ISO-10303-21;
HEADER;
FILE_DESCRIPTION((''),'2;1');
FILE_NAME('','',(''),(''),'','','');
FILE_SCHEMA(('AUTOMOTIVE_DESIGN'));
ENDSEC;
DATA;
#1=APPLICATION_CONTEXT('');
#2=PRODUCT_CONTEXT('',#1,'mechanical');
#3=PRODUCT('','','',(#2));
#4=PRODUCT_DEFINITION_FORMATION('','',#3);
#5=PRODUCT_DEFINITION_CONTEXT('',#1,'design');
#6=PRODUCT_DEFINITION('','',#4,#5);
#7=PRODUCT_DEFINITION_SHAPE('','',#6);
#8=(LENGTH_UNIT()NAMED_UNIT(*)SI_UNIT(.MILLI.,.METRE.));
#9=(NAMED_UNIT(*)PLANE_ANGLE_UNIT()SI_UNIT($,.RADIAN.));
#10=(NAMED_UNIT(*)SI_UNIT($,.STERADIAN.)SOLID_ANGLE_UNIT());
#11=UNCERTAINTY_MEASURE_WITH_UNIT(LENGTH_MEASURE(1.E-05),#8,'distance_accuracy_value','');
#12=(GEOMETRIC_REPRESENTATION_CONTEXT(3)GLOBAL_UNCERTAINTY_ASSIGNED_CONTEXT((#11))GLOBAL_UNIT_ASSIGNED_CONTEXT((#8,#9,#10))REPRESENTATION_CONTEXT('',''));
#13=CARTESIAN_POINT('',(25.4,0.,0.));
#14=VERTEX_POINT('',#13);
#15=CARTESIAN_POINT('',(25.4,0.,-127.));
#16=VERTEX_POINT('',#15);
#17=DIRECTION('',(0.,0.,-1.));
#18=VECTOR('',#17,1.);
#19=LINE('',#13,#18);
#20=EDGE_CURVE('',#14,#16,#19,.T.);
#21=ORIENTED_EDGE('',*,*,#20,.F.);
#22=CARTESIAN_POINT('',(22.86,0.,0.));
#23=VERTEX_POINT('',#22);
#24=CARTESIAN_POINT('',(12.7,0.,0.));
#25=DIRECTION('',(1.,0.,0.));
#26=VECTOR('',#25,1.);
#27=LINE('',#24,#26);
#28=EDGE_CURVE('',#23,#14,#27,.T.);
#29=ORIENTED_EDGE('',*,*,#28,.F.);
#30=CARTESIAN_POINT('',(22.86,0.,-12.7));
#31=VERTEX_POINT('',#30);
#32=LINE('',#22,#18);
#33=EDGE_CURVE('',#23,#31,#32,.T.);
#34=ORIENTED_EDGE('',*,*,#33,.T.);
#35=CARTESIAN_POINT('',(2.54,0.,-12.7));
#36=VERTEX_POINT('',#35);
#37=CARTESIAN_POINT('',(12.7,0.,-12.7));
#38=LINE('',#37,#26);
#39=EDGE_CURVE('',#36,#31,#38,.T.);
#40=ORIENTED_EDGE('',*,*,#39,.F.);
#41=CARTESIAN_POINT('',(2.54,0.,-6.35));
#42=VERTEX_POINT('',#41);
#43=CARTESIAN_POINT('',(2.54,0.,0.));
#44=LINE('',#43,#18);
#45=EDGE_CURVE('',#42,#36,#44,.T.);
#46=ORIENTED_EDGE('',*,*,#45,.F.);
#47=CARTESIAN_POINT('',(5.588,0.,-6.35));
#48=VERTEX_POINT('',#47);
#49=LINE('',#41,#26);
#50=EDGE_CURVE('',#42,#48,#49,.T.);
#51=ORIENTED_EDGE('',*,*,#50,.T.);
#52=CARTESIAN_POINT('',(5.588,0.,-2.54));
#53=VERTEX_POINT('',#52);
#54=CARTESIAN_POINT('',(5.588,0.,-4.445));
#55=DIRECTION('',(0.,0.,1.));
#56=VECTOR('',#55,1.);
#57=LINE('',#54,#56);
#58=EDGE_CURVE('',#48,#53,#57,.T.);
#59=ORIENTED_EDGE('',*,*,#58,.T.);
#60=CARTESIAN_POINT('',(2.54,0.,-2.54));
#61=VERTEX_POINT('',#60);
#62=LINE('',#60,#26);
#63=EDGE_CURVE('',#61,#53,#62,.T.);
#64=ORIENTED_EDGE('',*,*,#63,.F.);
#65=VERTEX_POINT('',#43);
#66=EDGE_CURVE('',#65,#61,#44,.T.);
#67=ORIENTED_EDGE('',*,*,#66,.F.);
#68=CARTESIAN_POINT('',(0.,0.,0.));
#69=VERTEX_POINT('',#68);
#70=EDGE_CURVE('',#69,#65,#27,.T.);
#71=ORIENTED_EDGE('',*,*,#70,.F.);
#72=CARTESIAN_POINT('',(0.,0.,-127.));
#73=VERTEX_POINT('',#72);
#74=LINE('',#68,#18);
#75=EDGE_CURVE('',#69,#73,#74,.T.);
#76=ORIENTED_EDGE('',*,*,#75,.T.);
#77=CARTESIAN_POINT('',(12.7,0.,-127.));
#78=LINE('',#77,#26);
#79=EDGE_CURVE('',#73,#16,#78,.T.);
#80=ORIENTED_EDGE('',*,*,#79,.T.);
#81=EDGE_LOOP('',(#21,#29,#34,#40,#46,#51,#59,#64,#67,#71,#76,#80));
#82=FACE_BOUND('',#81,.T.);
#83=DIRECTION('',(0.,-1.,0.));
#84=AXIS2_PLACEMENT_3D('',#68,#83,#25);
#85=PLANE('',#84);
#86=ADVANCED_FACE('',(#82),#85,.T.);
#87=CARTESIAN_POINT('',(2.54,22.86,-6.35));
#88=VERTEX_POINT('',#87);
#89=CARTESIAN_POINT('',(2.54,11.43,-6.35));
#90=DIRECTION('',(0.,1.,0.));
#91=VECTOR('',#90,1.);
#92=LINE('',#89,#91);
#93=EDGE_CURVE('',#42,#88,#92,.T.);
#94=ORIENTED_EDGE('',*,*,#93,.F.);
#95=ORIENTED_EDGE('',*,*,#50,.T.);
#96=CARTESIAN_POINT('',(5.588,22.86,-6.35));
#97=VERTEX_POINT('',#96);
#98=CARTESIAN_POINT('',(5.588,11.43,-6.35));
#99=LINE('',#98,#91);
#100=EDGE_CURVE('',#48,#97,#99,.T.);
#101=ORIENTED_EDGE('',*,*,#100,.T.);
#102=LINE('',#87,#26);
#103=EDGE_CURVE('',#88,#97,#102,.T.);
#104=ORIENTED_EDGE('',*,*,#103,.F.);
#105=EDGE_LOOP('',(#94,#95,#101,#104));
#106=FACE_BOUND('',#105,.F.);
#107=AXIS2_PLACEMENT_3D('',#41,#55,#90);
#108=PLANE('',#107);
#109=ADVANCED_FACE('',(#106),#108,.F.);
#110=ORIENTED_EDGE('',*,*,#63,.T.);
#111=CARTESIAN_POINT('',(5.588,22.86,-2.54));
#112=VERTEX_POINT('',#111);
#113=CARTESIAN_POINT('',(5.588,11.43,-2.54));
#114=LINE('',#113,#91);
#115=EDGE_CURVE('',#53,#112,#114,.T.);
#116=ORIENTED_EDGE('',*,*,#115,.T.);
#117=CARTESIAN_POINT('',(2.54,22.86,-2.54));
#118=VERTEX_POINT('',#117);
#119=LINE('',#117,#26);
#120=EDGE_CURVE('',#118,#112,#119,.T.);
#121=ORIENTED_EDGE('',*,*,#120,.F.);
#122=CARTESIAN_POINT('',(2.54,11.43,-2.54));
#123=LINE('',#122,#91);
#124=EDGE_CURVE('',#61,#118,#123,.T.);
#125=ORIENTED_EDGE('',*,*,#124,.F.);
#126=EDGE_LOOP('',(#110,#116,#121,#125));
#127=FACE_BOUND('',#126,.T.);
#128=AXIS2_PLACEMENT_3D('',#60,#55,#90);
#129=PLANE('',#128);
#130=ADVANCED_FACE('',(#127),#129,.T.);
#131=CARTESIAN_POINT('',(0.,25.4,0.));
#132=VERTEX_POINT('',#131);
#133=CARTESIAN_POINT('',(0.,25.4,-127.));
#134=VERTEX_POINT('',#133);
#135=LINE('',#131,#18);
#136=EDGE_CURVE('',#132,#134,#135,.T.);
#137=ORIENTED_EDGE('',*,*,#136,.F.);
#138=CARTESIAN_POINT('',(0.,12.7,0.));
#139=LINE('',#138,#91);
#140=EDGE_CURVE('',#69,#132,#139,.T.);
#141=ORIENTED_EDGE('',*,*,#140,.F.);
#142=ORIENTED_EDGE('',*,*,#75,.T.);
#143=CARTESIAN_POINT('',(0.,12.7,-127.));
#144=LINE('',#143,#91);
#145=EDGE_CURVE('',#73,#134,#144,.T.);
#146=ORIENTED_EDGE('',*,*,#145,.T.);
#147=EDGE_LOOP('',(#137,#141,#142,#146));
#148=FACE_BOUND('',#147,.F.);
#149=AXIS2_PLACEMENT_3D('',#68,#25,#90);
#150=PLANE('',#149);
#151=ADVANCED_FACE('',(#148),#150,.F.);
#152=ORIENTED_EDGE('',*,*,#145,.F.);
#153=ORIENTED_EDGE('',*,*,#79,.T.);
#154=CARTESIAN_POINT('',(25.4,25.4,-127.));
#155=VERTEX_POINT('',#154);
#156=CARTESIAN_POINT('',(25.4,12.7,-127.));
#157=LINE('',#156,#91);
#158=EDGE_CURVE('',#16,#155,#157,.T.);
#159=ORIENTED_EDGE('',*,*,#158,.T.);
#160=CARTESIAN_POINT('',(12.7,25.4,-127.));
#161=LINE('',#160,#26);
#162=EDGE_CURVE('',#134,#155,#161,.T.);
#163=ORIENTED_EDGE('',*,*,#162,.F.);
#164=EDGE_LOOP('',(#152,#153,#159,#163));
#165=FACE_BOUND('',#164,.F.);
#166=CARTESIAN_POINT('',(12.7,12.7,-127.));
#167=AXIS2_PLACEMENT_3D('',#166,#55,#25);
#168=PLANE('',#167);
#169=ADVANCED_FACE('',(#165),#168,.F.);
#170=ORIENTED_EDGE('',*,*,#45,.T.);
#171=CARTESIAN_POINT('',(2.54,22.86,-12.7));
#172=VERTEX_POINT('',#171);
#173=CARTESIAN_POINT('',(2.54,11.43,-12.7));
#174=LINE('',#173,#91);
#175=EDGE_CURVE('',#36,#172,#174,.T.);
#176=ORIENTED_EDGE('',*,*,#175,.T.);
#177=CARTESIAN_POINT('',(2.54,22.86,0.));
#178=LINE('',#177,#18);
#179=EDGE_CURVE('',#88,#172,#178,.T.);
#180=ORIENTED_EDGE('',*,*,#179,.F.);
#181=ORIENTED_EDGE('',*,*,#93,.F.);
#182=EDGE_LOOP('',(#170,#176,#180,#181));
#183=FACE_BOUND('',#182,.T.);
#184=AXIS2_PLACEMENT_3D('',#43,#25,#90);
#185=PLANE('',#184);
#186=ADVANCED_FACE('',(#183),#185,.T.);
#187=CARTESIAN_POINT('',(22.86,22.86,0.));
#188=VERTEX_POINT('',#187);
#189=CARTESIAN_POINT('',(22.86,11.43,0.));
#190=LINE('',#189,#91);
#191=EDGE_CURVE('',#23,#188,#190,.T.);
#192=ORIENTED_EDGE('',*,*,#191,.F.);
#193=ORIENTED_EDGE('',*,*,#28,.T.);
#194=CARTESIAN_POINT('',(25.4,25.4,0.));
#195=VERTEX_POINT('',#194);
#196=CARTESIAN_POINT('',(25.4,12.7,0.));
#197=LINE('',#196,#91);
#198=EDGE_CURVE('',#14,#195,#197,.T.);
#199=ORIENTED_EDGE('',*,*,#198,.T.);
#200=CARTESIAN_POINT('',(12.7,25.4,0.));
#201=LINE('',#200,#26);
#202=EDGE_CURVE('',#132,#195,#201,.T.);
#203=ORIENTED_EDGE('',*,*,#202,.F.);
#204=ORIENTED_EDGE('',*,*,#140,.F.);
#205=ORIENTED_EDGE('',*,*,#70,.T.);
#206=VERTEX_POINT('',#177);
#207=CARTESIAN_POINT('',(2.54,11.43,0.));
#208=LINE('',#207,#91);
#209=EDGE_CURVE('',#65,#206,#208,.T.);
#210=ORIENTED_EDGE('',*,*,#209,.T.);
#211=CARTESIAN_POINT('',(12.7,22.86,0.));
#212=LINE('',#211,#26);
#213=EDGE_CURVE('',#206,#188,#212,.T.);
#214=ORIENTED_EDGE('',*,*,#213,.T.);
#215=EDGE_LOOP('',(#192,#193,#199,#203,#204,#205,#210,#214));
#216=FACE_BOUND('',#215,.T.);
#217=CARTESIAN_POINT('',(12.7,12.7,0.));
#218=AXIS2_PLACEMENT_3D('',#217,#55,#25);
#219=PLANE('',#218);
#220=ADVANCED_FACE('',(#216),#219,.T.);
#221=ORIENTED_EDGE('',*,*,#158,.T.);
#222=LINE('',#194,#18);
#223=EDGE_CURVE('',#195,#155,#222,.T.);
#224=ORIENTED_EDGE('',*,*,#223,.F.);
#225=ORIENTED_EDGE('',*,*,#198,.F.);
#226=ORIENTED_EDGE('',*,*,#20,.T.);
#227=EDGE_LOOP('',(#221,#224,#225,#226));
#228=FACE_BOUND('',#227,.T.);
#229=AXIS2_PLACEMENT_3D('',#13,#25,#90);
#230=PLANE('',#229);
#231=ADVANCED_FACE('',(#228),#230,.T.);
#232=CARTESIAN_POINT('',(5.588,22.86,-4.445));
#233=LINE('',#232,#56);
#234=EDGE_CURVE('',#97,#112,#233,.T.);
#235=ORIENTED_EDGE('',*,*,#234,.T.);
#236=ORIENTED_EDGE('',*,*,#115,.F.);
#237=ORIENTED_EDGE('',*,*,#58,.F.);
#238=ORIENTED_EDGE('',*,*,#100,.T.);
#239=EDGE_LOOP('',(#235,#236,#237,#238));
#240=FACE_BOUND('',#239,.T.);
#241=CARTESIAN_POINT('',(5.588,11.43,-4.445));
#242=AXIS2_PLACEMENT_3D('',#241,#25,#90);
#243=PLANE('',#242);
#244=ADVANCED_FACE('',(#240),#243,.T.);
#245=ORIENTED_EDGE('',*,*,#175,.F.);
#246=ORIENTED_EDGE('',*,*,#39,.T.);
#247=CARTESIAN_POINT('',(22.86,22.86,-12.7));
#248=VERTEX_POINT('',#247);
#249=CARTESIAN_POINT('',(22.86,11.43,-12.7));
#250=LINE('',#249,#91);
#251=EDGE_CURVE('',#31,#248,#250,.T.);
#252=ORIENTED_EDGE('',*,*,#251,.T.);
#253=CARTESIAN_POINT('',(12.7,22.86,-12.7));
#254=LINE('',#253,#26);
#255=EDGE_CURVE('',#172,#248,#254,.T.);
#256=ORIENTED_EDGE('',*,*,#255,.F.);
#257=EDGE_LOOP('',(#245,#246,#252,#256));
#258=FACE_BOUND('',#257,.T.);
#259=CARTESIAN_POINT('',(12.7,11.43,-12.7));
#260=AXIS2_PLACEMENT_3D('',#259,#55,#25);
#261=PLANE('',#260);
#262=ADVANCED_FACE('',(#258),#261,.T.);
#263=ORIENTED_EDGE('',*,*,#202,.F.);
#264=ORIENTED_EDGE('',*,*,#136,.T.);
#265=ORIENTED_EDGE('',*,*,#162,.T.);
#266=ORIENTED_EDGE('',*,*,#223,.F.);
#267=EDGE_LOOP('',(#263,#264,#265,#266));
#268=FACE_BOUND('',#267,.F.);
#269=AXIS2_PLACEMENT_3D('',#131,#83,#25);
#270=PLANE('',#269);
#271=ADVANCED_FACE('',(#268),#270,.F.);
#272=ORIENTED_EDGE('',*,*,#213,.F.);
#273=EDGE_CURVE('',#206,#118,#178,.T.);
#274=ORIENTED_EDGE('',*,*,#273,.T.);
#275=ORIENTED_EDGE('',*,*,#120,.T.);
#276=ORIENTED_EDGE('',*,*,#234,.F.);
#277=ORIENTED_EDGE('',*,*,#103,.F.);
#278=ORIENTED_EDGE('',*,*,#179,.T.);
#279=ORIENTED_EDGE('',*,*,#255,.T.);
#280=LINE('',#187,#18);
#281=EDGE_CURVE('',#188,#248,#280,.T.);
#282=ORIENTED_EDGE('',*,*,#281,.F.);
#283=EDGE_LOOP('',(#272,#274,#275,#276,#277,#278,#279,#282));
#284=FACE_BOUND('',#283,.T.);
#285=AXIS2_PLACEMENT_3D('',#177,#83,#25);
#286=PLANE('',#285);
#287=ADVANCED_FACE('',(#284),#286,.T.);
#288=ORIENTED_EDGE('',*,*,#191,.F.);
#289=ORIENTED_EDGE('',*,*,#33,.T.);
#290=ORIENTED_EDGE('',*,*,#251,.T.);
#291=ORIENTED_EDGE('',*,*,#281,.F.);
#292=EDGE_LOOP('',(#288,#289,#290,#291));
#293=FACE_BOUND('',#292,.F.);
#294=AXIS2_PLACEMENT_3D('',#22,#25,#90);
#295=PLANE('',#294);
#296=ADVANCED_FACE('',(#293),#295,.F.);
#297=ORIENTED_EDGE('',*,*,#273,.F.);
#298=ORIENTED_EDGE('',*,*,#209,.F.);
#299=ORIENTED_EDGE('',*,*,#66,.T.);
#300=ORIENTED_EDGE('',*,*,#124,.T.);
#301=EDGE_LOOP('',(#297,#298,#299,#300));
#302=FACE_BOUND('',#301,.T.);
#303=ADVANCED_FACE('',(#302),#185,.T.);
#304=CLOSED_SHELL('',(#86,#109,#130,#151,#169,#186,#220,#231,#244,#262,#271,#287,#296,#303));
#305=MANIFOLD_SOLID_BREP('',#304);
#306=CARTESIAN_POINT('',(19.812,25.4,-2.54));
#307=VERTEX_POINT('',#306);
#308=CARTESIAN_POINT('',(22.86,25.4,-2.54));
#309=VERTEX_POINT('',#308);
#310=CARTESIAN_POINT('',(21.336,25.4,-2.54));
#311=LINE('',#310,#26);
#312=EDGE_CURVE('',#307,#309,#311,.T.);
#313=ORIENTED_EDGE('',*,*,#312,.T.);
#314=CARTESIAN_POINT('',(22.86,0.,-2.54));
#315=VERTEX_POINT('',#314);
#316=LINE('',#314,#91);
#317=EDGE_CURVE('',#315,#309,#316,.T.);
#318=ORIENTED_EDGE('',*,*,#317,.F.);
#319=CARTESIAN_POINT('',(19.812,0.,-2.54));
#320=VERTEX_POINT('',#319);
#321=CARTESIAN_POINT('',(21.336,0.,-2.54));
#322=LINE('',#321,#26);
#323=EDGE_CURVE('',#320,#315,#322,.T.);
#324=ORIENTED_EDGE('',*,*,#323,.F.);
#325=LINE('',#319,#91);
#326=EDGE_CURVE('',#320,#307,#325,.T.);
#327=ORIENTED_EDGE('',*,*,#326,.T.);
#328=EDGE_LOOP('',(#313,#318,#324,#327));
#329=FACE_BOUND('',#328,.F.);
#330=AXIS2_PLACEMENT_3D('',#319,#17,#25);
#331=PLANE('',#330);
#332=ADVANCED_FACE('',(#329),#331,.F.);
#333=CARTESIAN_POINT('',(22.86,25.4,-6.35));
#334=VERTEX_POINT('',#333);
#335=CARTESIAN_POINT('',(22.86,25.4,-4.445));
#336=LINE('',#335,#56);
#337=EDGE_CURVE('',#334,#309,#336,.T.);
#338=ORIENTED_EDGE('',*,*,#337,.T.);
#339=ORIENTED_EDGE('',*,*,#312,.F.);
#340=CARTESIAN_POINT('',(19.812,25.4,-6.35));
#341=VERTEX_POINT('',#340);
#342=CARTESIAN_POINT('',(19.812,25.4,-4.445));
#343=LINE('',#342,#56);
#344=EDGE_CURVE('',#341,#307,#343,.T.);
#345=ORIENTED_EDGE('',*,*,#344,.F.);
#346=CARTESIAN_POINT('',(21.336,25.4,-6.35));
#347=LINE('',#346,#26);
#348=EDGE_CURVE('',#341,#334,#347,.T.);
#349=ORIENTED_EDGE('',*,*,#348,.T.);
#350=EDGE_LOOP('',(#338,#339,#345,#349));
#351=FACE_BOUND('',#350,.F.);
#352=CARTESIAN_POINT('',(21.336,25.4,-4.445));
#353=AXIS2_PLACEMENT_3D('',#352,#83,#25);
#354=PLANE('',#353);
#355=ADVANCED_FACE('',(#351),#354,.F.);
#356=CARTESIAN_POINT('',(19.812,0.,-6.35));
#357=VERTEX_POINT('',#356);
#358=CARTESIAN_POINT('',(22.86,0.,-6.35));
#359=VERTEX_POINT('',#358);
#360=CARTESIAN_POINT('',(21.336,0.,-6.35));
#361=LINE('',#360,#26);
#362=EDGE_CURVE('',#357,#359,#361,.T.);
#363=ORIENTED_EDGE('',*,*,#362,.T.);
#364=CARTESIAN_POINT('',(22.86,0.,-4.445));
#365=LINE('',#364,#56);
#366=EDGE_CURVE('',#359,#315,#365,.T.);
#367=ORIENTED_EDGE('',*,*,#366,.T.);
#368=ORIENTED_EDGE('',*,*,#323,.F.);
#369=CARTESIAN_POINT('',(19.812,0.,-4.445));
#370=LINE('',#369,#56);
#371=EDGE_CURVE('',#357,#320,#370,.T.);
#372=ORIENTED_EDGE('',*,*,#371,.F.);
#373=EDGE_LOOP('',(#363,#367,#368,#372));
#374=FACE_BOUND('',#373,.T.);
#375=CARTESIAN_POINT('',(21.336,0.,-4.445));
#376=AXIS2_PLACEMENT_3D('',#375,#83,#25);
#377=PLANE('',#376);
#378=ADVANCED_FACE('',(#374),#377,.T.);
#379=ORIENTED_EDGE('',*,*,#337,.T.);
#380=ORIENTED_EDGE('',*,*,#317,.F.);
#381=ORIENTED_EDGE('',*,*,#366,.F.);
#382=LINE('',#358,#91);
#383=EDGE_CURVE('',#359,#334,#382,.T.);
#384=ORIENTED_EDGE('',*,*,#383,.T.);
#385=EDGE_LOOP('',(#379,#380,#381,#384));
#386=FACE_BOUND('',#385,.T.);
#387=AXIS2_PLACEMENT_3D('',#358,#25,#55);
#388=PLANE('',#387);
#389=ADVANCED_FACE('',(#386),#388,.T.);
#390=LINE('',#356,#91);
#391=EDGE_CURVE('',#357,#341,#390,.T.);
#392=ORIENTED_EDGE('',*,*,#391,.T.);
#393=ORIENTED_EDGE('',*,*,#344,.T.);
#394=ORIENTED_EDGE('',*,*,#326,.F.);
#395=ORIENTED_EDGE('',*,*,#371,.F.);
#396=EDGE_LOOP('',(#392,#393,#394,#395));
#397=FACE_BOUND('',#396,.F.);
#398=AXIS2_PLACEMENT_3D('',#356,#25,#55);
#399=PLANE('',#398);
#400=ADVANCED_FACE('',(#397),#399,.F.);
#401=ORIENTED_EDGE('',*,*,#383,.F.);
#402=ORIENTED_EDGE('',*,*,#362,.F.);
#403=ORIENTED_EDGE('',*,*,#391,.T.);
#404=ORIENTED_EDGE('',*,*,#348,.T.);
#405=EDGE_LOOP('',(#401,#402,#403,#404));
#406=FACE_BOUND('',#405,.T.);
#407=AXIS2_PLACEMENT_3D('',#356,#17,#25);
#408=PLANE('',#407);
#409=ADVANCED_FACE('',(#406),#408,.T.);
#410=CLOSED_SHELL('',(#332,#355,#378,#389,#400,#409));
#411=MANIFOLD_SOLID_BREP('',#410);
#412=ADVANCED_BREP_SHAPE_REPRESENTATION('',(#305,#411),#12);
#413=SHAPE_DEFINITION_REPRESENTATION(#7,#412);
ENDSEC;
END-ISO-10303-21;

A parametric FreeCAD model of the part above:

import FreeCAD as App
import Part
import Sketcher
from FreeCAD import Vector
Q = App.Units.Quantity


def add_polygon(sketch, points):
    """Adds a closed chain of lines whose ends are joined by coincident constraints."""
    first, n = sketch.GeometryCount, len(points)
    for a, b in zip(points, points[1:] + points[:1]):
        sketch.addGeometry(Part.LineSegment(App.Vector(*a, 0), App.Vector(*b, 0)), False)
    for i in range(n):
        sketch.addConstraint(Sketcher.Constraint("Coincident", first + i, 2, first + (i + 1) % n, 1))

doc = App.newDocument("Part")
body = doc.addObject("PartDesign::Body", "Body")

sketch1 = doc.addObject("Sketcher::SketchObject", "Sketch")
body.addObject(sketch1)
sketch1.AttachmentSupport = (doc.XY_Plane, [""])
sketch1.MapMode = "FlatFace"
add_polygon(sketch1, [(0, 25), (0, 0), (25, 0), (25, 25)])
sketch1.addConstraint([
    Sketcher.Constraint("Vertical", 0),
    Sketcher.Constraint("Horizontal", 1),
    Sketcher.Constraint("Vertical", 2),
    Sketcher.Constraint("Horizontal", 3),
    Sketcher.Constraint("Coincident", 0, 2, -1, 1),
    Sketcher.Constraint("Equal", 3, 0),
    Sketcher.Constraint("DistanceX", 1, 1, 1, 2, Q("1 in")),
])
pad1 = doc.addObject("PartDesign::Pad", "Pad")
body.addObject(pad1)
pad1.Profile = sketch1
pad1.Length = Q("5 in")
pad1.Reversed = True

sketch2 = doc.addObject("Sketcher::SketchObject", "Sketch001")
body.addObject(sketch2)
sketch2.AttachmentSupport = (doc.XY_Plane, [""])
sketch2.MapMode = "FlatFace"
add_polygon(sketch2, [(3, 23), (3, 0), (23, 0), (23, 23)])
sketch2.addConstraint([
    Sketcher.Constraint("Vertical", 0),
    Sketcher.Constraint("Horizontal", 1),
    Sketcher.Constraint("Vertical", 2),
    Sketcher.Constraint("Horizontal", 3),
    Sketcher.Constraint("PointOnObject", 0, 2, -1),
    Sketcher.Constraint("DistanceX", 1, 1, 1, 2, Q("0.8 in")),
    Sketcher.Constraint("DistanceY", 0, 2, 0, 1, Q("0.9 in")),
    Sketcher.Constraint("DistanceX", -1, 1, 0, 2, Q("0.1 in")),
])
pocket1 = doc.addObject("PartDesign::Pocket", "Pocket")
body.addObject(pocket1)
pocket1.Profile = sketch2
pocket1.Length = Q("0.5 in")

sketch3 = doc.addObject("Sketcher::SketchObject", "Sketch002")
body.addObject(sketch3)
sketch3.AttachmentSupport = (doc.YZ_Plane, [""])
sketch3.MapMode = "FlatFace"
sketch3.AttachmentOffset = App.Placement(Vector(0, 0, 0.1 * 25.4), App.Rotation())
add_polygon(sketch3, [(0, -2.5), (0, -6.3), (22.9, -6.3), (22.9, -2.5)])
sketch3.addConstraint([
    Sketcher.Constraint("Vertical", 0),
    Sketcher.Constraint("Horizontal", 1),
    Sketcher.Constraint("Vertical", 2),
    Sketcher.Constraint("Horizontal", 3),
    Sketcher.Constraint("PointOnObject", 0, 2, -2),
    Sketcher.Constraint("DistanceX", 1, 1, 1, 2, Q("0.9 in")),
    Sketcher.Constraint("DistanceY", 0, 2, 0, 1, Q("0.15 in")),
    Sketcher.Constraint("DistanceY", 2, 2, -1, 1, Q("0.1 in")),
])
pad2 = doc.addObject("PartDesign::Pad", "Pad001")
body.addObject(pad2)
pad2.Profile = sketch3
pad2.Length = Q("0.12 in")
body2 = doc.addObject("PartDesign::Body", "Body001")

sketch4 = doc.addObject("Sketcher::SketchObject", "Sketch003")
body2.addObject(sketch4)
sketch4.AttachmentSupport = (doc.getObject("XZ_Plane001"), [""])
sketch4.MapMode = "FlatFace"
add_polygon(sketch4, [(19.8, -2.5), (19.8, -6.3), (22.9, -6.3), (22.9, -2.5)])
sketch4.addConstraint([
    Sketcher.Constraint("Vertical", 0),
    Sketcher.Constraint("Horizontal", 1),
    Sketcher.Constraint("Vertical", 2),
    Sketcher.Constraint("Horizontal", 3),
    Sketcher.Constraint("DistanceX", 1, 1, 1, 2, Q("0.12 in")),
    Sketcher.Constraint("DistanceY", 0, 2, 0, 1, Q("0.15 in")),
    Sketcher.Constraint("DistanceX", -1, 1, 1, 2, Q("0.9 in")),
    Sketcher.Constraint("DistanceY", 2, 2, -1, 1, Q("0.1 in")),
])
pad3 = doc.addObject("PartDesign::Pad", "Pad002")
body2.addObject(pad3)
pad3.Profile = sketch4
pad3.Length = Q("1 in")
pad3.Reversed = True

doc.recompute()
